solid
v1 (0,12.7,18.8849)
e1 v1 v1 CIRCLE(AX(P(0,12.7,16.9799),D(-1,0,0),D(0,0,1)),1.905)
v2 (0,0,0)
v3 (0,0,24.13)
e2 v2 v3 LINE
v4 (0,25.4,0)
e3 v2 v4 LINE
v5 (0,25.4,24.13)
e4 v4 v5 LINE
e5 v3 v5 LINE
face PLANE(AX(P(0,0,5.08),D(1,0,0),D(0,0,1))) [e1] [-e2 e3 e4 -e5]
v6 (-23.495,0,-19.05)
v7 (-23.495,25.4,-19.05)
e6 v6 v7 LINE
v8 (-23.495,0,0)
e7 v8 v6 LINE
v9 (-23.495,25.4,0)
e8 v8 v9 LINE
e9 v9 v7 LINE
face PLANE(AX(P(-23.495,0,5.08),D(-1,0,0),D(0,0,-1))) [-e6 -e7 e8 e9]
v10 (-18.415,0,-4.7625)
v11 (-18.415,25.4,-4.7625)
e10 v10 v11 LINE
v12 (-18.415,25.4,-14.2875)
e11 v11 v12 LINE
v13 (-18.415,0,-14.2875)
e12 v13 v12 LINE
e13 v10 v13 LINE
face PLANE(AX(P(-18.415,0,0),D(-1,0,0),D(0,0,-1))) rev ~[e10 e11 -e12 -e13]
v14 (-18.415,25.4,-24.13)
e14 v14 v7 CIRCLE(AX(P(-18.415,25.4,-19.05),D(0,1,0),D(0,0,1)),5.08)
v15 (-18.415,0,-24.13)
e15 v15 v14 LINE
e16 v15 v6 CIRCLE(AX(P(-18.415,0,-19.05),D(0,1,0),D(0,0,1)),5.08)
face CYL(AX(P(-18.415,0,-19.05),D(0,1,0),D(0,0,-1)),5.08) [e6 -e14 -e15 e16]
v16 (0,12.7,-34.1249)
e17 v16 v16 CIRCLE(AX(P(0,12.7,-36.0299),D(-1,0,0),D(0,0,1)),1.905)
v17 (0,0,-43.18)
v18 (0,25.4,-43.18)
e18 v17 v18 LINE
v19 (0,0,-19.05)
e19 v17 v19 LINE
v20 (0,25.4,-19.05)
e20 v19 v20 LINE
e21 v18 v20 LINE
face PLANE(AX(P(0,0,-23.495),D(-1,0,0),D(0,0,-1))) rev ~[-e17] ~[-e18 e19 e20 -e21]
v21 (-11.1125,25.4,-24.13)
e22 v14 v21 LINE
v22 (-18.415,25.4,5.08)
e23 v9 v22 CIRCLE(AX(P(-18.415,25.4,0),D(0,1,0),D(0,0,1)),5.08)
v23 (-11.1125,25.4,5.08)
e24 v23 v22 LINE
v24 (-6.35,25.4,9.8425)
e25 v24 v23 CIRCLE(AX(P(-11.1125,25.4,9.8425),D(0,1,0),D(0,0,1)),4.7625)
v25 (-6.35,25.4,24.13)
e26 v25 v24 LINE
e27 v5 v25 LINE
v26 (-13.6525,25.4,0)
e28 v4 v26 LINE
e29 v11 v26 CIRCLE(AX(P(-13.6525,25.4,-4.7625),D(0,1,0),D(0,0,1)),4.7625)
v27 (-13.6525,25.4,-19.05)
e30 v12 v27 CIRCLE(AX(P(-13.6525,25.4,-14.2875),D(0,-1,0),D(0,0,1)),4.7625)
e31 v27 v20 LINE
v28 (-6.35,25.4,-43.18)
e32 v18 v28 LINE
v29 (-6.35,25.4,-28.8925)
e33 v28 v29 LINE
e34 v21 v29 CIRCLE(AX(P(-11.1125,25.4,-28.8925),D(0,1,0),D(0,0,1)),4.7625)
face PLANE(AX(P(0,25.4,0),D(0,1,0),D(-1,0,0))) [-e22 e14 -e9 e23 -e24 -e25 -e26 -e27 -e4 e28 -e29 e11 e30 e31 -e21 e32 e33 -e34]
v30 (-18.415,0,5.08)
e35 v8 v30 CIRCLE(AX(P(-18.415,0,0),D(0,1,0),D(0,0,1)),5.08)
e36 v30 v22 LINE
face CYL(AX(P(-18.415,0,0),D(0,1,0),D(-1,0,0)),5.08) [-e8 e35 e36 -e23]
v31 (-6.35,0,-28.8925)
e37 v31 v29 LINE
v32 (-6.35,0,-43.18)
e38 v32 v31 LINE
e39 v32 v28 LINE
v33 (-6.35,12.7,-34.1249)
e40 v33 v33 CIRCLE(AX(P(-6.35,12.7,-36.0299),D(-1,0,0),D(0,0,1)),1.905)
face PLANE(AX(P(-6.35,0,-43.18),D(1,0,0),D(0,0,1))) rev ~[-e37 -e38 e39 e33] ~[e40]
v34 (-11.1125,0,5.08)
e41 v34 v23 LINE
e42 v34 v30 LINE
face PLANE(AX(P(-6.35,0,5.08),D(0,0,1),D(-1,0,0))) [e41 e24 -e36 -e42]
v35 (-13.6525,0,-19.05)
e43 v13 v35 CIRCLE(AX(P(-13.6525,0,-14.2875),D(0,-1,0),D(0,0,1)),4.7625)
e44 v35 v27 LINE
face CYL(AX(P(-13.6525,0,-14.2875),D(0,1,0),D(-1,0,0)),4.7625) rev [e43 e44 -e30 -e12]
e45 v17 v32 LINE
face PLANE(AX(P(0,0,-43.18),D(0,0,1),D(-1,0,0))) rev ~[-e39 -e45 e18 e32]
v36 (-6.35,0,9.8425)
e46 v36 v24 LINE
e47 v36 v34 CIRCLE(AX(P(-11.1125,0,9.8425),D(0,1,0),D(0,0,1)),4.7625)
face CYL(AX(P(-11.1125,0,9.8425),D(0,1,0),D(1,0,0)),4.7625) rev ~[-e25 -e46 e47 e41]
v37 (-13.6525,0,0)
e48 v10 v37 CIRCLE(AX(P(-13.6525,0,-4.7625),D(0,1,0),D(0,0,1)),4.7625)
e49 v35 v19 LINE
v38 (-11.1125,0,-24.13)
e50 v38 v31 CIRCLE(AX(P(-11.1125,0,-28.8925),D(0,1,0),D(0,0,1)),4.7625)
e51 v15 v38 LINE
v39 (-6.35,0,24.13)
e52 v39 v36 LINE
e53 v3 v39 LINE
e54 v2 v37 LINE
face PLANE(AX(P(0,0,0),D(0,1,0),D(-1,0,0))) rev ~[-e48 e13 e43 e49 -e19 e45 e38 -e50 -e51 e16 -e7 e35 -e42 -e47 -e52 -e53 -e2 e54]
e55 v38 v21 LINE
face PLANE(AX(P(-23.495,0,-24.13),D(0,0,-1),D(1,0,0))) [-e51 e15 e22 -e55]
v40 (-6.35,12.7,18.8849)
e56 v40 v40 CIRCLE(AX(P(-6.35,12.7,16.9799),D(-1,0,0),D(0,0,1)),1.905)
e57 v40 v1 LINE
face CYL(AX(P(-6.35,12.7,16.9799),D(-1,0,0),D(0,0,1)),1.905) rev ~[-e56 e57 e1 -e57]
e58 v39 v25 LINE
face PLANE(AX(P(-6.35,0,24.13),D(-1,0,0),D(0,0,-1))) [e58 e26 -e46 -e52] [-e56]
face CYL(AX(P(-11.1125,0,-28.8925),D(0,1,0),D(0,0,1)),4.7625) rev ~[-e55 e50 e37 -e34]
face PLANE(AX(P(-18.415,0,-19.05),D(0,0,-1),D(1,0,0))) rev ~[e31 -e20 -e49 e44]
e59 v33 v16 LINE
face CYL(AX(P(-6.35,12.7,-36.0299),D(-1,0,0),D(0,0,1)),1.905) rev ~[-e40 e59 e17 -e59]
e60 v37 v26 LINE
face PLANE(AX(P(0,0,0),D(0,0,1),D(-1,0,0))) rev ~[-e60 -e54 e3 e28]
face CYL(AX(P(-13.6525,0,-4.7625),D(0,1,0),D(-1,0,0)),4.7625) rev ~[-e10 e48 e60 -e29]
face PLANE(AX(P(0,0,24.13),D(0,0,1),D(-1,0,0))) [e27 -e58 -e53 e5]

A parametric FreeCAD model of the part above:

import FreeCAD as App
import Part
import Sketcher

V = App.Vector
Q = App.Units.Quantity


def edges_at(feature, points):
    """Names of the edges that pass closest to the given points."""
    edges = feature.Shape.Edges
    near = lambda p: min(range(len(edges)), key=lambda i: edges[i].distToShape(Part.Vertex(*p))[0])
    return sorted({f"Edge{near(p) + 1}" for p in points})

doc = App.newDocument("Part")
body = doc.addObject("PartDesign::Body", "Body")

# Sketch on XZ plane
sketch1 = doc.addObject("Sketcher::SketchObject", "Sketch")
body.addObject(sketch1)
sketch1.AttachmentSupport = (doc.XZ_Plane, [""])
sketch1.MapMode = "FlatFace"
sketch1.addGeometry([
    Part.LineSegment(V(0, 24.13, 0), V(0, 0, 0)),  # 0
    Part.LineSegment(V(0, 0, 0), V(-18.415, 0, 0)),  # 1
    Part.LineSegment(V(-18.415, 0, 0), V(-18.415, -19.05, 0)),  # 2
    Part.LineSegment(V(-18.415, -19.05, 0), V(0, -19.05, 0)),  # 3
    Part.LineSegment(V(0, -19.05, 0), V(0, -43.18, 0)),  # 4
    Part.LineSegment(V(0, -43.18, 0), V(-6.35, -43.18, 0)),  # 5
    Part.LineSegment(V(-6.35, -43.18, 0), V(-6.35, -24.13, 0)),  # 6
    Part.LineSegment(V(-6.35, -24.13, 0), V(-23.495, -24.13, 0)),  # 7
    Part.LineSegment(V(-23.495, -24.13, 0), V(-23.495, 5.08, 0)),  # 8
    Part.LineSegment(V(-23.495, 5.08, 0), V(-6.35, 5.08, 0)),  # 9
    Part.LineSegment(V(-6.35, 5.08, 0), V(-6.35, 24.13, 0)),  # 10
    Part.LineSegment(V(-6.35, 24.13, 0), V(0, 24.13, 0)),  # 11
], False)
sketch1.addConstraint([
    Sketcher.Constraint("Coincident", 0, 2, 1, 1),
    Sketcher.Constraint("Coincident", 1, 2, 2, 1),
    Sketcher.Constraint("Coincident", 2, 2, 3, 1),
    Sketcher.Constraint("Coincident", 3, 2, 4, 1),
    Sketcher.Constraint("Coincident", 4, 2, 5, 1),
    Sketcher.Constraint("Coincident", 5, 2, 6, 1),
    Sketcher.Constraint("Coincident", 6, 2, 7, 1),
    Sketcher.Constraint("Coincident", 7, 2, 8, 1),
    Sketcher.Constraint("Coincident", 8, 2, 9, 1),
    Sketcher.Constraint("Coincident", 9, 2, 10, 1),
    Sketcher.Constraint("Coincident", 10, 2, 11, 1),
    Sketcher.Constraint("Coincident", 11, 2, 0, 1),
    Sketcher.Constraint("Vertical", 0),
    Sketcher.Constraint("Horizontal", 1),
    Sketcher.Constraint("Vertical", 2),
    Sketcher.Constraint("Horizontal", 3),
    Sketcher.Constraint("Vertical", 4),
    Sketcher.Constraint("Horizontal", 5),
    Sketcher.Constraint("Vertical", 6),
    Sketcher.Constraint("Horizontal", 7),
    Sketcher.Constraint("Vertical", 8),
    Sketcher.Constraint("Horizontal", 9),
    Sketcher.Constraint("Vertical", 10),
    Sketcher.Constraint("Horizontal", 11),
    Sketcher.Constraint("Coincident", 0, 2, -1, 1),
    Sketcher.Constraint("Symmetric", 6, 2, 10, 2, -1),
    Sketcher.Constraint("PointOnObject", 3, 2, -2),
    Sketcher.Constraint("Equal", 0, 4),
    Sketcher.Constraint("Equal", 6, 10),
    Sketcher.Constraint("DistanceX", 5, 2, 5, 1, Q("0.25 in")),
    Sketcher.Constraint("DistanceY", 0, 2, 0, 1, Q("0.95 in")),
    Sketcher.Constraint("DistanceY", 2, 2, 2, 1, Q("0.75 in")),
    Sketcher.Constraint("DistanceX", 7, 2, 2, 2, Q("0.2 in")),
    Sketcher.Constraint("DistanceX", 1, 2, 1, 1, Q("0.725 in")),
])
pad1 = doc.addObject("PartDesign::Pad", "Pad")
body.addObject(pad1)
pad1.Profile = sketch1
pad1.Length = Q("1 in")
pad1.Reversed = True
doc.recompute()

fillet = doc.addObject("PartDesign::Fillet", "Fillet")
body.addObject(fillet)
fillet.Base = (pad1, edges_at(pad1, [(-18.415, 12.7, 0)]))
fillet.Radius = Q("0.1875 in")
doc.recompute()

fillet2 = doc.addObject("PartDesign::Fillet", "Fillet001")
body.addObject(fillet2)
fillet2.Base = (fillet, edges_at(fillet, [(-18.415, 12.7, -19.05)]))
fillet2.Radius = Q("0.1875 in")
doc.recompute()

fillet3 = doc.addObject("PartDesign::Fillet", "Fillet002")
body.addObject(fillet3)
fillet3.Base = (fillet2, edges_at(fillet2, [(-6.35, 12.7, 5.08)]))
fillet3.Radius = Q("0.1875 in")
doc.recompute()

fillet4 = doc.addObject("PartDesign::Fillet", "Fillet003")
body.addObject(fillet4)
fillet4.Base = (fillet3, edges_at(fillet3, [(-6.35, 12.7, -24.13)]))
fillet4.Radius = Q("0.1875 in")
doc.recompute()

fillet5 = doc.addObject("PartDesign::Fillet", "Fillet004")
body.addObject(fillet5)
fillet5.Base = (fillet4, edges_at(fillet4, [(-23.495, 12.7, 5.08), (-23.495, 12.7, -24.13)]))
fillet5.Radius = Q("0.2 in")

# Sketch on YZ plane
sketch2 = doc.addObject("Sketcher::SketchObject", "Sketch001")
body.addObject(sketch2)
sketch2.AttachmentSupport = (doc.YZ_Plane, [""])
sketch2.MapMode = "FlatFace"
sketch2.AttachmentOffset = App.Placement(V(0, 0, -0.25 * 25.4), App.Rotation())
sketch2.addGeometry(Part.Circle(V(12.7, 16.9799, 0), V(0, 0, 1), 1.905), False)
sketch2.addConstraint([
    Sketcher.Constraint("Diameter", 0, Q("0.15 in")),
    Sketcher.Constraint("DistanceX", -1, 1, 0, 3, Q("0.5 in")),
    Sketcher.Constraint("DistanceY", -1, 1, 0, 3, Q("0.6685 in")),
])
pocket1 = doc.addObject("PartDesign::Pocket", "Pocket")
body.addObject(pocket1)
pocket1.Profile = sketch2
pocket1.Length = Q("0.25 in")
pocket1.Reversed = True

# Sketch on YZ plane
sketch3 = doc.addObject("Sketcher::SketchObject", "Sketch002")
body.addObject(sketch3)
sketch3.AttachmentSupport = (doc.YZ_Plane, [""])
sketch3.MapMode = "FlatFace"
sketch3.AttachmentOffset = App.Placement(V(0, 0, -0.25 * 25.4), App.Rotation())
sketch3.addGeometry(Part.Circle(V(12.7, -36.0299, 0), V(0, 0, 1), 1.905), False)
sketch3.addConstraint([
    Sketcher.Constraint("Diameter", 0, Q("0.15 in")),
    Sketcher.Constraint("DistanceX", -1, 1, 0, 3, Q("0.5 in")),
    Sketcher.Constraint("DistanceY", 0, 3, -1, 1, Q("1.4185 in")),
])
pocket2 = doc.addObject("PartDesign::Pocket", "Pocket001")
body.addObject(pocket2)
pocket2.Profile = sketch3
pocket2.Length = Q("0.25 in")
pocket2.Reversed = True

doc.recompute()
